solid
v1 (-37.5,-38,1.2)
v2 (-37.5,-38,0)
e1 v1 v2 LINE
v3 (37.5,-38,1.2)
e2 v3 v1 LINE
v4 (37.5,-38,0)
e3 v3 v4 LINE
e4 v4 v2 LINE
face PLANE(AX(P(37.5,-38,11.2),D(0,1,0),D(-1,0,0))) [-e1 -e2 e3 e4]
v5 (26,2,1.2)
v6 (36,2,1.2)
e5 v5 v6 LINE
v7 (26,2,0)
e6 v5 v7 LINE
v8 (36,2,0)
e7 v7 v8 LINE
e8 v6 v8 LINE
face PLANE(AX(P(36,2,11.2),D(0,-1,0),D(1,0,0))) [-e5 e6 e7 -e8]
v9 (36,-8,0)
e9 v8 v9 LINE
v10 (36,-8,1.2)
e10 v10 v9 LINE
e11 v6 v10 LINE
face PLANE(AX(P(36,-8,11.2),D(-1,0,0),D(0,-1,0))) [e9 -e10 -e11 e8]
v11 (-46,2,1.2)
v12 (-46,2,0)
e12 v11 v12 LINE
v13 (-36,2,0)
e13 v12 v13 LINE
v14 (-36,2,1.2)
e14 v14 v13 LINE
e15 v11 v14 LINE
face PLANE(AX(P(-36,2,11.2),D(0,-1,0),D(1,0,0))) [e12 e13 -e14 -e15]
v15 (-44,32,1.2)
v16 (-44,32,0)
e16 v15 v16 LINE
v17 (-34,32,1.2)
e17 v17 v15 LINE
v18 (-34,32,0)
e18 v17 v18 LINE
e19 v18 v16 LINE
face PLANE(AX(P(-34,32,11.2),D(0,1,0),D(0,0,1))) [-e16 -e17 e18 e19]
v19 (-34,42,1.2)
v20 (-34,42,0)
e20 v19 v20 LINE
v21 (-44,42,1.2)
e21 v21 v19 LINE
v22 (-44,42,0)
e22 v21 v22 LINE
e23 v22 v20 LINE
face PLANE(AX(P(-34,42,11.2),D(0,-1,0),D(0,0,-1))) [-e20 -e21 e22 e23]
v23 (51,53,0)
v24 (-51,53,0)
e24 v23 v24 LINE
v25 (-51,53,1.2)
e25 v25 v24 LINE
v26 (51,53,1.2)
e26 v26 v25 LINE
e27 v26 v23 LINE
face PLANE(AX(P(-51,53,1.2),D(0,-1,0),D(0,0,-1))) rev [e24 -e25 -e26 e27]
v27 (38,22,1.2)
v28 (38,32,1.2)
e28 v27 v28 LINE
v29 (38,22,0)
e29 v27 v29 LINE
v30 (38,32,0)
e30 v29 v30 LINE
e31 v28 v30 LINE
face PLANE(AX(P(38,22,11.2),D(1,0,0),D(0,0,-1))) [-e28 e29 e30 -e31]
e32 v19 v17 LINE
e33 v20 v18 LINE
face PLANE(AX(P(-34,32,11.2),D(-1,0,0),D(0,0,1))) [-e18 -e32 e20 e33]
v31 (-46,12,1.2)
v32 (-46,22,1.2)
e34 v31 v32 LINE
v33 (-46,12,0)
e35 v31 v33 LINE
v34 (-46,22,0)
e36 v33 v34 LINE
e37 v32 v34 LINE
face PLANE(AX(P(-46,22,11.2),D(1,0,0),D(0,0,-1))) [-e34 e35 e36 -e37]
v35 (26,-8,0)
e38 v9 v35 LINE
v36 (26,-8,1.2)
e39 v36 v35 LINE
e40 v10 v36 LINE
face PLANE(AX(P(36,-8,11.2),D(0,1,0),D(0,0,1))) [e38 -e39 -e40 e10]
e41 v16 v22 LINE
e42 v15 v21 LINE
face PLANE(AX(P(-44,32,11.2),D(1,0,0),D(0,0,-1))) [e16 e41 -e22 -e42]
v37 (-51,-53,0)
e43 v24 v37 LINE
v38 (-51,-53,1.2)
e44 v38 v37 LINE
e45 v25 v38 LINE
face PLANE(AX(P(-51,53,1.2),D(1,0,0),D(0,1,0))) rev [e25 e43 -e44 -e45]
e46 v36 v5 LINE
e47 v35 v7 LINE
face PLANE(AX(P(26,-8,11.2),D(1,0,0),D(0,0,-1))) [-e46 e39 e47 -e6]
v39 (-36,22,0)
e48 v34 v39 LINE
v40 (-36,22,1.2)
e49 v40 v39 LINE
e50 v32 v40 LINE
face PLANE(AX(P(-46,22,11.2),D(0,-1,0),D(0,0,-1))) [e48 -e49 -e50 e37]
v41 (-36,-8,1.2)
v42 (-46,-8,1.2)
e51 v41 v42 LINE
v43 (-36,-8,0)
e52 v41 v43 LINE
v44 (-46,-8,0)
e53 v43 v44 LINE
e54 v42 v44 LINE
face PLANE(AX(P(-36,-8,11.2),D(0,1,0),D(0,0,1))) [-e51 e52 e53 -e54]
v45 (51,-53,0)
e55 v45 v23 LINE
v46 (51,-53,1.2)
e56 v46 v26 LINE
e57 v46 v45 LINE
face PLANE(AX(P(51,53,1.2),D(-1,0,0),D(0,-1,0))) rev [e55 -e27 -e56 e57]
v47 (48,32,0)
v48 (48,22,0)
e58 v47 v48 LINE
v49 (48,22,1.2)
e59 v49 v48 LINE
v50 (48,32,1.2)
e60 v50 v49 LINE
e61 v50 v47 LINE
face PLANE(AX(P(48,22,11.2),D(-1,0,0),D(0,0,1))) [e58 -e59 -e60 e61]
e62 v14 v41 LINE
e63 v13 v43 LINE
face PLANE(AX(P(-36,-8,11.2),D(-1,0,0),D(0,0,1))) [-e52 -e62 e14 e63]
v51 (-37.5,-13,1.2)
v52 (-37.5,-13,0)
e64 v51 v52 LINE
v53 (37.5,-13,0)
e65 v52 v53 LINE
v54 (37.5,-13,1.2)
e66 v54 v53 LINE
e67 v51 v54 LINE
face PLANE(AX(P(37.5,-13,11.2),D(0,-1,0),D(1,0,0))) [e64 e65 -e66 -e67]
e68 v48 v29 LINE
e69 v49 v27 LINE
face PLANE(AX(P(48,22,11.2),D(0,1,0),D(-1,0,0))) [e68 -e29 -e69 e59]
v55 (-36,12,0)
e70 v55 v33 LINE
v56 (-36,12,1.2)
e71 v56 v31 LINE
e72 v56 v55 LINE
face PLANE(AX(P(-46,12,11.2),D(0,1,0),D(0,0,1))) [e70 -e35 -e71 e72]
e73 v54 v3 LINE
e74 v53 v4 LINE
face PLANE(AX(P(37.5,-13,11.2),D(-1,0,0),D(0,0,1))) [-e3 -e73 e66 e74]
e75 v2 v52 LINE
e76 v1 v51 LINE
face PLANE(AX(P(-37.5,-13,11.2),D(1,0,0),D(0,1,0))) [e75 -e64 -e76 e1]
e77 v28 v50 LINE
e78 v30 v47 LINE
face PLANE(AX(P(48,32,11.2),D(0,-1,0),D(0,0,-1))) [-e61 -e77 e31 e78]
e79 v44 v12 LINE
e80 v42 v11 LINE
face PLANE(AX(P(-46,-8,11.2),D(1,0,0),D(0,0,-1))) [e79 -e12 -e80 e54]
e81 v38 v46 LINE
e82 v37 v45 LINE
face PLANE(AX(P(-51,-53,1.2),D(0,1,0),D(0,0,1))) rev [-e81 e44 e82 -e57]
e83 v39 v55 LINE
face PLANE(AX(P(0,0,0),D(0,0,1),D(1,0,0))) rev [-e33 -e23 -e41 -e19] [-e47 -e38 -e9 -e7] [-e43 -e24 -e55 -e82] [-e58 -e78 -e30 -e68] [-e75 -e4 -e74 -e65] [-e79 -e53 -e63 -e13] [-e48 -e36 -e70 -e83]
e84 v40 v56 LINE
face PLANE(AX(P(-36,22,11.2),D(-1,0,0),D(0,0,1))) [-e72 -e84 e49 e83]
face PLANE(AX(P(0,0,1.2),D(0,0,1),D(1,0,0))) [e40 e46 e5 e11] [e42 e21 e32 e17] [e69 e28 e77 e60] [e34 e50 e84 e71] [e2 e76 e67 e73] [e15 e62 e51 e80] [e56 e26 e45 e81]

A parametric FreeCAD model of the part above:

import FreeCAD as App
import Part
import Sketcher
from FreeCAD import Vector


def add_polygon(sketch, points):
    """Adds a closed chain of lines whose ends are joined by coincident constraints."""
    first, n = sketch.GeometryCount, len(points)
    for a, b in zip(points, points[1:] + points[:1]):
        sketch.addGeometry(Part.LineSegment(App.Vector(*a, 0), App.Vector(*b, 0)), False)
    for i in range(n):
        sketch.addConstraint(Sketcher.Constraint("Coincident", first + i, 2, first + (i + 1) % n, 1))

doc = App.newDocument("Part")
body = doc.addObject("PartDesign::Body", "Body")

# Sketch on XY plane
sketch1 = doc.addObject("Sketcher::SketchObject", "Sketch")
body.addObject(sketch1)
sketch1.AttachmentSupport = (doc.XY_Plane, [""])
sketch1.MapMode = "FlatFace"
add_polygon(sketch1, [(-51, 53), (-51, -53), (51, -53), (51, 53)])  # lines 0-3
sketch1.addConstraint([
    Sketcher.Constraint("Vertical", 0),
    Sketcher.Constraint("Horizontal", 1),
    Sketcher.Constraint("Vertical", 2),
    Sketcher.Constraint("Horizontal", 3),
    Sketcher.Constraint("Symmetric", 0, 2, 2, 2, -1, 1),
    Sketcher.Constraint("DistanceX", 1, 1, 1, 2, 102.0),
    Sketcher.Constraint("DistanceY", 0, 2, 0, 1, 106.0),
])
pad1 = doc.addObject("PartDesign::Pad", "Pad")
body.addObject(pad1)
pad1.Profile = sketch1
pad1.Length = 1.2

# Sketch on XY plane
sketch2 = doc.addObject("Sketcher::SketchObject", "Sketch001")
body.addObject(sketch2)
sketch2.AttachmentSupport = (doc.XY_Plane, [""])
sketch2.MapMode = "FlatFace"
sketch2.AttachmentOffset = App.Placement(Vector(0, 0, 1.2), App.Rotation())
add_polygon(sketch2, [(-38, -13), (-38, -38), (38, -38), (38, -13)])  # lines 0-3
sketch2.addConstraint([
    Sketcher.Constraint("Vertical", 0),
    Sketcher.Constraint("Horizontal", 1),
    Sketcher.Constraint("Vertical", 2),
    Sketcher.Constraint("Horizontal", 3),
    Sketcher.Constraint("DistanceX", 1, 1, 1, 2, 75.0),
    Sketcher.Constraint("DistanceY", 0, 2, 0, 1, 25.0),
    Sketcher.Constraint("DistanceY", 0, 2, -1, 1, 38.0),
    Sketcher.Constraint("DistanceX", 0, 2, -1, 1, 37.5),
])
pocket1 = doc.addObject("PartDesign::Pocket", "Pocket")
body.addObject(pocket1)
pocket1.Profile = sketch2
pocket1.Type = "ThroughAll"
pocket1.Midplane = True

# Sketch on XY plane
sketch3 = doc.addObject("Sketcher::SketchObject", "Sketch002")
body.addObject(sketch3)
sketch3.AttachmentSupport = (doc.XY_Plane, [""])
sketch3.MapMode = "FlatFace"
sketch3.AttachmentOffset = App.Placement(Vector(0, 0, 1.2), App.Rotation())
add_polygon(sketch3, [(-46, 2), (-46, -8), (-36, -8), (-36, 2)])  # lines 0-3
add_polygon(sketch3, [(26, 2), (26, -8), (36, -8), (36, 2)])  # lines 4-7
sketch3.addConstraint([
    Sketcher.Constraint("Vertical", 0),
    Sketcher.Constraint("Horizontal", 1),
    Sketcher.Constraint("Vertical", 2),
    Sketcher.Constraint("Horizontal", 3),
    Sketcher.Constraint("Vertical", 4),
    Sketcher.Constraint("Horizontal", 5),
    Sketcher.Constraint("Vertical", 6),
    Sketcher.Constraint("Horizontal", 7),
    Sketcher.Constraint("Symmetric", 1, 2, 5, 2, -2),
    Sketcher.Constraint("Horizontal", 3, 2, 6, 2),
    Sketcher.Constraint("Equal", 3, 5),
    Sketcher.Constraint("Equal", 7, 0),
    Sketcher.Constraint("DistanceX", 1, 1, 1, 2, 10.0),
    Sketcher.Constraint("DistanceX", 0, 2, -1, 1, 46.0),
    Sketcher.Constraint("DistanceY", 0, 2, -1, 1, 8.0),
])
pocket2 = doc.addObject("PartDesign::Pocket", "Pocket001")
body.addObject(pocket2)
pocket2.Profile = sketch3
pocket2.Type = "ThroughAll"
pocket2.Midplane = True

# Sketch on XY plane
sketch4 = doc.addObject("Sketcher::SketchObject", "Sketch003")
body.addObject(sketch4)
sketch4.AttachmentSupport = (doc.XY_Plane, [""])
sketch4.MapMode = "FlatFace"
sketch4.AttachmentOffset = App.Placement(Vector(0, 0, 1.2), App.Rotation())
add_polygon(sketch4, [(-46, 22), (-46, 12), (-36, 12), (-36, 22)])  # lines 0-3
add_polygon(sketch4, [(-44, 42), (-44, 32), (-34, 32), (-34, 42)])  # lines 4-7
add_polygon(sketch4, [(38, 32), (38, 22), (48, 22), (48, 32)])  # lines 8-11
sketch4.addConstraint([
    Sketcher.Constraint("Vertical", 0),
    Sketcher.Constraint("Horizontal", 1),
    Sketcher.Constraint("Vertical", 2),
    Sketcher.Constraint("Horizontal", 3),
    Sketcher.Constraint("Vertical", 4),
    Sketcher.Constraint("Horizontal", 5),
    Sketcher.Constraint("Vertical", 6),
    Sketcher.Constraint("Horizontal", 7),
    Sketcher.Constraint("Vertical", 8),
    Sketcher.Constraint("Horizontal", 9),
    Sketcher.Constraint("Vertical", 10),
    Sketcher.Constraint("Horizontal", 11),
    Sketcher.Constraint("Horizontal", 3, 2, 8, 2),
    Sketcher.Constraint("Horizontal", 5, 2, 10, 2),
    Sketcher.Constraint("Equal", 3, 5),
    Sketcher.Constraint("Equal", 7, 9),
    Sketcher.Constraint("Equal", 11, 0),
    Sketcher.Constraint("Equal", 2, 4),
    Sketcher.Constraint("Equal", 6, 8),
    Sketcher.Constraint("DistanceX", 1, 1, 1, 2, 10.0),
    Sketcher.Constraint("DistanceX", 0, 2, -1, 1, 46.0),
    Sketcher.Constraint("DistanceY", -1, 1, 0, 2, 12.0),
    Sketcher.Constraint("DistanceX", 4, 2, -1, 1, 44.0),
    Sketcher.Constraint("DistanceX", -1, 1, 8, 2, 38.0),
])
pocket3 = doc.addObject("PartDesign::Pocket", "Pocket002")
body.addObject(pocket3)
pocket3.Profile = sketch4
pocket3.Type = "ThroughAll"
pocket3.Midplane = True

doc.recompute()
